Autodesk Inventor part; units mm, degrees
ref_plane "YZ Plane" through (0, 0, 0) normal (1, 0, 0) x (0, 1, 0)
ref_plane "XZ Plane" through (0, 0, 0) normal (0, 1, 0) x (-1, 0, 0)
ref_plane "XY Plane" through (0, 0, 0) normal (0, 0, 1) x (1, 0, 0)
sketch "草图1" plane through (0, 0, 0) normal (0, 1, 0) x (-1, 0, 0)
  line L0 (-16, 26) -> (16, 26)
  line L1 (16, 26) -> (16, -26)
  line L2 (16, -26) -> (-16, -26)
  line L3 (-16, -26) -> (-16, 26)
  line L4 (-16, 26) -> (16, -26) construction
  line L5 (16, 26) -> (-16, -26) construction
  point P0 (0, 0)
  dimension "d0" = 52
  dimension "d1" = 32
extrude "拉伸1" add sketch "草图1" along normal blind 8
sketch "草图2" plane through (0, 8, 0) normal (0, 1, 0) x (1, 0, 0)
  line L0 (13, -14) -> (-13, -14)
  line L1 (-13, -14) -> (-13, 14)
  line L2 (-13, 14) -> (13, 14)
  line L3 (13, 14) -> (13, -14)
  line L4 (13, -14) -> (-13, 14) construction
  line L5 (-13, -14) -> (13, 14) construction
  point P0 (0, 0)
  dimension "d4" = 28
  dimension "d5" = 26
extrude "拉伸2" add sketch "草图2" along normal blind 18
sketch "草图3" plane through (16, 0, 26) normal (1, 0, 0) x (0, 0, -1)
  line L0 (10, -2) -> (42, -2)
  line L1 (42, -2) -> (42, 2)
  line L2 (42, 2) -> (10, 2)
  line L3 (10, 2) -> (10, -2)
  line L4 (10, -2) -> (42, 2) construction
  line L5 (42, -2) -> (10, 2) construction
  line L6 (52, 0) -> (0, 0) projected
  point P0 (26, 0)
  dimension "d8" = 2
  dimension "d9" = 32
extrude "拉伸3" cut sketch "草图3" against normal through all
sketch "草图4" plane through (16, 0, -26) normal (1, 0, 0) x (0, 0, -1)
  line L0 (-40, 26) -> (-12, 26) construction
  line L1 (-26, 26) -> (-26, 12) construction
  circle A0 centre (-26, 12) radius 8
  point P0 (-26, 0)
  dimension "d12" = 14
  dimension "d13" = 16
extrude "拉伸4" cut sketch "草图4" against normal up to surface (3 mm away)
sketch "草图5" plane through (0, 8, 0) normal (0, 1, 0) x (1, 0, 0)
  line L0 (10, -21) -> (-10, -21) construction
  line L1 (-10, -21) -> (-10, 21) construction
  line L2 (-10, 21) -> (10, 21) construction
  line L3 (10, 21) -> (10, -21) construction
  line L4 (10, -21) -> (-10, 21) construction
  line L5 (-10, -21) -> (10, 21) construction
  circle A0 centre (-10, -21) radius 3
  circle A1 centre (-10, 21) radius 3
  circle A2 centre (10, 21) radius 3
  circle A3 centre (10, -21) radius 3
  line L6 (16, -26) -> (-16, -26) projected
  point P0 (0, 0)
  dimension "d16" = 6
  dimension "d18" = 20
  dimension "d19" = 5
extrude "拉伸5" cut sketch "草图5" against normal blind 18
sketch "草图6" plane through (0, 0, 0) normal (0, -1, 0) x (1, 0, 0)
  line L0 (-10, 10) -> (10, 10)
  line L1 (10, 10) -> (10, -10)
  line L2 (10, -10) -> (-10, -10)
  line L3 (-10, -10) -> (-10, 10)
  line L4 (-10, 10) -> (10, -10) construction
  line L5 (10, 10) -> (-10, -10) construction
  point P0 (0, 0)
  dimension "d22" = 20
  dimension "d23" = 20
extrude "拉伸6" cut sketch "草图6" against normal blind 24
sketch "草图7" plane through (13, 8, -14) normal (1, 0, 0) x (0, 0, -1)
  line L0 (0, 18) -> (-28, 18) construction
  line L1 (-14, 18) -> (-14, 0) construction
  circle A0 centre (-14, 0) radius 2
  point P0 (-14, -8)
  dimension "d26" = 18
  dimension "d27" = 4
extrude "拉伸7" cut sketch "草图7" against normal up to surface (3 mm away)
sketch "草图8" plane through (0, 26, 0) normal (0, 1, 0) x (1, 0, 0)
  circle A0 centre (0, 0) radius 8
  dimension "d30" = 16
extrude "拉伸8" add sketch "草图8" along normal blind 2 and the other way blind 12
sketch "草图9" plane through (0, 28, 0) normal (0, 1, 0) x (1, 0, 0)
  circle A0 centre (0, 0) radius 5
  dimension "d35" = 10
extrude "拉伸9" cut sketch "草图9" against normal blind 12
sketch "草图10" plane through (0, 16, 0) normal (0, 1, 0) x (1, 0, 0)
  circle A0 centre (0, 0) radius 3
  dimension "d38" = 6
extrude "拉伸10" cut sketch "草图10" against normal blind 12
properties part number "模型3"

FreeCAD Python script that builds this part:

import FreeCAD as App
import Part
import Sketcher
from FreeCAD import Vector


def add_polygon(sketch, points):
    """Adds a closed chain of lines whose ends are joined by coincident constraints."""
    first, n = sketch.GeometryCount, len(points)
    for a, b in zip(points, points[1:] + points[:1]):
        sketch.addGeometry(Part.LineSegment(App.Vector(*a, 0), App.Vector(*b, 0)), False)
    for i in range(n):
        sketch.addConstraint(Sketcher.Constraint("Coincident", first + i, 2, first + (i + 1) % n, 1))

doc = App.newDocument("Part")
params = doc.addObject("Spreadsheet::Sheet", "Params")
for row, (alias, value) in enumerate([
    ("sketch1_width", "32 mm"),
    ("sketch1_height", "52 mm"),
    ("pad1_length", "8 mm"),
    ("sketch2_width", "26 mm"),
    ("sketch2_height", "28 mm"),
    ("pad2_length", "18 mm"),
    ("sketch3_height", "32 mm"),
    ("sketch4_diameter", "16 mm"),
    ("pocket2_length", "3 mm"),
    ("sketch5_diameter", "6 mm"),
    ("pocket3_length", "18 mm"),
    ("sketch6_width", "20 mm"),
    ("pocket4_length", "24 mm"),
    ("sketch7_diameter", "4 mm"),
    ("pocket5_length", "3 mm"),
    ("sketch8_diameter", "16 mm"),
    ("pad3_length", "2 mm"),
    ("pad3_length2", "12 mm"),
    ("sketch9_diameter", "10 mm"),
    ("pocket6_length", "12 mm"),
    ("sketch10_diameter", "6 mm"),
    ("pocket7_length", "12 mm"),
], start=1):
    params.set(f"A{row}", alias)
    params.set(f"B{row}", "=" + value)
    params.setAlias(f"B{row}", alias)

body = doc.addObject("PartDesign::Body", "Body")

# Sketch on XZ plane
sketch1 = body.newObject("Sketcher::SketchObject", "Sketch")
sketch1.AttachmentSupport = (doc.getObject("XZ_Plane"), [""])
sketch1.MapMode = "FlatFace"
add_polygon(sketch1, [(-16, 26), (16, 26), (16, -26), (-16, -26)])  # lines 0-3
sketch1.addConstraint([
    Sketcher.Constraint("Horizontal", 0),
    Sketcher.Constraint("Vertical", 1),
    Sketcher.Constraint("Horizontal", 2),
    Sketcher.Constraint("Vertical", 3),
    Sketcher.Constraint("Symmetric", 0, 2, 2, 2, -1, 1),
    Sketcher.Constraint("DistanceX", 0, 1, 0, 2, 32.0),
    Sketcher.Constraint("DistanceY", 1, 2, 1, 1, 52.0),
])
sketch1.setExpression("Constraints[9]", "Params.sketch1_width")
sketch1.setExpression("Constraints[10]", "Params.sketch1_height")
pad1 = body.newObject("PartDesign::Pad", "Pad")
pad1.Profile = sketch1
pad1.setExpression("Length", "Params.pad1_length")
pad1.Reversed = True

# Sketch on XZ plane
sketch2 = body.newObject("Sketcher::SketchObject", "Sketch001")
sketch2.AttachmentSupport = (doc.getObject("XZ_Plane"), [""])
sketch2.MapMode = "FlatFace"
sketch2.AttachmentOffset = App.Placement(Vector(0, 0, -8), App.Rotation())
add_polygon(sketch2, [(-13, 14), (13, 14), (13, -14), (-13, -14)])  # lines 0-3
sketch2.addConstraint([
    Sketcher.Constraint("Horizontal", 0),
    Sketcher.Constraint("Vertical", 1),
    Sketcher.Constraint("Horizontal", 2),
    Sketcher.Constraint("Vertical", 3),
    Sketcher.Constraint("Symmetric", 0, 2, 2, 2, -1, 1),
    Sketcher.Constraint("DistanceX", 0, 1, 0, 2, 26.0),
    Sketcher.Constraint("DistanceY", 1, 2, 1, 1, 28.0),
])
sketch2.setExpression("Constraints[9]", "Params.sketch2_width")
sketch2.setExpression("Constraints[10]", "Params.sketch2_height")
pad2 = body.newObject("PartDesign::Pad", "Pad001")
pad2.Profile = sketch2
pad2.setExpression("Length", "Params.pad2_length")
pad2.Reversed = True

# Sketch on YZ plane
sketch3 = body.newObject("Sketcher::SketchObject", "Sketch002")
sketch3.AttachmentSupport = (doc.getObject("YZ_Plane"), [""])
sketch3.MapMode = "FlatFace"
sketch3.AttachmentOffset = App.Placement(Vector(0, 0, 16), App.Rotation())
add_polygon(sketch3, [(-2, 16), (-2, -16), (2, -16), (2, 16)])  # lines 0-3
sketch3.addConstraint([
    Sketcher.Constraint("Vertical", 0),
    Sketcher.Constraint("Horizontal", 1),
    Sketcher.Constraint("Vertical", 2),
    Sketcher.Constraint("Horizontal", 3),
    Sketcher.Constraint("Symmetric", 0, 2, 2, 2, -1, 1),
    Sketcher.Constraint("DistanceY", 0, 2, 0, 1, 32.0),
    Sketcher.Constraint("DistanceX", 0, 2, -1, 1, 2.0),
])
sketch3.setExpression("Constraints[9]", "Params.sketch3_height")
pocket1 = body.newObject("PartDesign::Pocket", "Pocket")
pocket1.Profile = sketch3
pocket1.Type = "ThroughAll"

# Sketch on YZ plane
sketch4 = body.newObject("Sketcher::SketchObject", "Sketch003")
sketch4.AttachmentSupport = (doc.getObject("YZ_Plane"), [""])
sketch4.MapMode = "FlatFace"
sketch4.AttachmentOffset = App.Placement(Vector(0, 0, 16), App.Rotation())
sketch4.addGeometry(Part.Circle(Vector(12, 0, 0), Vector(0, 0, 1), 8), False)
sketch4.addConstraint([
    Sketcher.Constraint("PointOnObject", 0, 3, -1),
    Sketcher.Constraint("Diameter", 0, 16.0),
    Sketcher.Constraint("DistanceX", -1, 1, 0, 3, 12.0),
])
sketch4.setExpression("Constraints[1]", "Params.sketch4_diameter")
pocket2 = body.newObject("PartDesign::Pocket", "Pocket001")
pocket2.Profile = sketch4
pocket2.setExpression("Length", "Params.pocket2_length")

# Sketch on XZ plane
sketch5 = body.newObject("Sketcher::SketchObject", "Sketch004")
sketch5.AttachmentSupport = (doc.getObject("XZ_Plane"), [""])
sketch5.MapMode = "FlatFace"
sketch5.AttachmentOffset = App.Placement(Vector(0, 0, -8), App.Rotation())
sketch5.addGeometry([
    Part.Circle(Vector(-10, 21, 0), Vector(0, 0, 1), 3),
    Part.Circle(Vector(-10, -21, 0), Vector(0, 0, 1), 3),
    Part.Circle(Vector(10, -21, 0), Vector(0, 0, 1), 3),
    Part.Circle(Vector(10, 21, 0), Vector(0, 0, 1), 3),
], False)
sketch5.addConstraint([
    Sketcher.Constraint("Equal", 0, 1),
    Sketcher.Constraint("Equal", 1, 2),
    Sketcher.Constraint("Equal", 2, 3),
    Sketcher.Constraint("Symmetric", 0, 3, 2, 3, -1, 1),
    Sketcher.Constraint("Symmetric", 1, 3, 3, 3, -1, 1),
    Sketcher.Constraint("Symmetric", 1, 3, 2, 3, -2),
    Sketcher.Constraint("Diameter", 0, 6.0),
    Sketcher.Constraint("DistanceX", 1, 3, 2, 3, 20.0),
    Sketcher.Constraint("DistanceY", -1, 1, 0, 3, 21.0),
])
sketch5.setExpression("Constraints[6]", "Params.sketch5_diameter")
pocket3 = body.newObject("PartDesign::Pocket", "Pocket002")
pocket3.Profile = sketch5
pocket3.setExpression("Length", "Params.pocket3_length")
pocket3.Reversed = True

# Sketch on XZ plane
sketch6 = body.newObject("Sketcher::SketchObject", "Sketch005")
sketch6.AttachmentSupport = (doc.getObject("XZ_Plane"), [""])
sketch6.MapMode = "FlatFace"
add_polygon(sketch6, [(10, 10), (-10, 10), (-10, -10), (10, -10)])  # lines 0-3
sketch6.addConstraint([
    Sketcher.Constraint("Horizontal", 0),
    Sketcher.Constraint("Vertical", 1),
    Sketcher.Constraint("Horizontal", 2),
    Sketcher.Constraint("Vertical", 3),
    Sketcher.Constraint("Symmetric", 0, 2, 2, 2, -1, 1),
    Sketcher.Constraint("Equal", 2, 1),
    Sketcher.Constraint("DistanceX", 0, 2, 0, 1, 20.0),
])
sketch6.setExpression("Constraints[10]", "Params.sketch6_width")
pocket4 = body.newObject("PartDesign::Pocket", "Pocket003")
pocket4.Profile = sketch6
pocket4.setExpression("Length", "Params.pocket4_length")

# Sketch on YZ plane
sketch7 = body.newObject("Sketcher::SketchObject", "Sketch006")
sketch7.AttachmentSupport = (doc.getObject("YZ_Plane"), [""])
sketch7.MapMode = "FlatFace"
sketch7.AttachmentOffset = App.Placement(Vector(0, 0, 13), App.Rotation())
sketch7.addGeometry(Part.Circle(Vector(8, 0, 0), Vector(0, 0, 1), 2), False)
sketch7.addConstraint([
    Sketcher.Constraint("PointOnObject", 0, 3, -1),
    Sketcher.Constraint("Diameter", 0, 4.0),
    Sketcher.Constraint("DistanceX", -1, 1, 0, 3, 8.0),
])
sketch7.setExpression("Constraints[1]", "Params.sketch7_diameter")
pocket5 = body.newObject("PartDesign::Pocket", "Pocket004")
pocket5.Profile = sketch7
pocket5.setExpression("Length", "Params.pocket5_length")

# Sketch on XZ plane
sketch8 = body.newObject("Sketcher::SketchObject", "Sketch007")
sketch8.AttachmentSupport = (doc.getObject("XZ_Plane"), [""])
sketch8.MapMode = "FlatFace"
sketch8.AttachmentOffset = App.Placement(Vector(0, 0, -26), App.Rotation())
sketch8.addGeometry(Part.Circle(Vector(0, 0, 0), Vector(0, 0, 1), 8), False)
sketch8.addConstraint([
    Sketcher.Constraint("Coincident", 0, 3, -1, 1),
    Sketcher.Constraint("Diameter", 0, 16.0),
])
sketch8.setExpression("Constraints[1]", "Params.sketch8_diameter")
pad3 = body.newObject("PartDesign::Pad", "Pad002")
pad3.Profile = sketch8
pad3.Type = "TwoLengths"
pad3.setExpression("Length", "Params.pad3_length")
pad3.setExpression("Length2", "Params.pad3_length2")
pad3.Reversed = True

# Sketch on XZ plane
sketch9 = body.newObject("Sketcher::SketchObject", "Sketch008")
sketch9.AttachmentSupport = (doc.getObject("XZ_Plane"), [""])
sketch9.MapMode = "FlatFace"
sketch9.AttachmentOffset = App.Placement(Vector(0, 0, -28), App.Rotation())
sketch9.addGeometry(Part.Circle(Vector(0, 0, 0), Vector(0, 0, 1), 5), False)
sketch9.addConstraint([
    Sketcher.Constraint("Coincident", 0, 3, -1, 1),
    Sketcher.Constraint("Diameter", 0, 10.0),
])
sketch9.setExpression("Constraints[1]", "Params.sketch9_diameter")
pocket6 = body.newObject("PartDesign::Pocket", "Pocket005")
pocket6.Profile = sketch9
pocket6.setExpression("Length", "Params.pocket6_length")
pocket6.Reversed = True

# Sketch on XZ plane
sketch10 = body.newObject("Sketcher::SketchObject", "Sketch009")
sketch10.AttachmentSupport = (doc.getObject("XZ_Plane"), [""])
sketch10.MapMode = "FlatFace"
sketch10.AttachmentOffset = App.Placement(Vector(0, 0, -16), App.Rotation())
sketch10.addGeometry(Part.Circle(Vector(0, 0, 0), Vector(0, 0, 1), 3), False)
sketch10.addConstraint([
    Sketcher.Constraint("Coincident", 0, 3, -1, 1),
    Sketcher.Constraint("Diameter", 0, 6.0),
])
sketch10.setExpression("Constraints[1]", "Params.sketch10_diameter")
pocket7 = body.newObject("PartDesign::Pocket", "Pocket006")
pocket7.Profile = sketch10
pocket7.setExpression("Length", "Params.pocket7_length")
pocket7.Reversed = True

doc.recompute()
